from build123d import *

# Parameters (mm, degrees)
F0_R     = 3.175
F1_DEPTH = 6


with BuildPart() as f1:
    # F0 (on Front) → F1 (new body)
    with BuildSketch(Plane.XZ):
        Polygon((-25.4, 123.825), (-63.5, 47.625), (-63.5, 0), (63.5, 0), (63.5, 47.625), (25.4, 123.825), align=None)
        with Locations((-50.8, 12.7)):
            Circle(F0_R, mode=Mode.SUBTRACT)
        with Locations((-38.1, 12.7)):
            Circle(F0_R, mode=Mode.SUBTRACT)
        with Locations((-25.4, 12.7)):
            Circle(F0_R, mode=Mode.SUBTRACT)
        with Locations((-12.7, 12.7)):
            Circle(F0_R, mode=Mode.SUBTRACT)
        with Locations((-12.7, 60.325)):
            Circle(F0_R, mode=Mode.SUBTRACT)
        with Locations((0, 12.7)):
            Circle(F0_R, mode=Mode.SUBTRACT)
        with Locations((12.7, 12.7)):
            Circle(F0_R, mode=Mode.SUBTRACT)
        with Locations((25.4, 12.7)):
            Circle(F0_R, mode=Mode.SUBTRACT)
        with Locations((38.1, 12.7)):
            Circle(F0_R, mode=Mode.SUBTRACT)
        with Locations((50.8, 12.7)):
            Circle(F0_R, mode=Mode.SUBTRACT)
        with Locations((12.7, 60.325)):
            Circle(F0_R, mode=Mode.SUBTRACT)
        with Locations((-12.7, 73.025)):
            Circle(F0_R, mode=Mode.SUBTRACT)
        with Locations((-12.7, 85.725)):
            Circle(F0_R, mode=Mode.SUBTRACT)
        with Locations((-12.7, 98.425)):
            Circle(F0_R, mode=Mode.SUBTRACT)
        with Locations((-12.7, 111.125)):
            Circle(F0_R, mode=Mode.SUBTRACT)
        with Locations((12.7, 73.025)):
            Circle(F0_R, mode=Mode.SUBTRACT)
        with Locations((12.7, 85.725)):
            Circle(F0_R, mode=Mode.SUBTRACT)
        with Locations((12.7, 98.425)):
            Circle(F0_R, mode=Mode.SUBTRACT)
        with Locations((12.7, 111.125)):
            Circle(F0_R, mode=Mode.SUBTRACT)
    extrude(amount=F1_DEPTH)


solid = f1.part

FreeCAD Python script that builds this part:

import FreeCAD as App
import Part
import Sketcher

V = App.Vector
Q = App.Units.Quantity

doc = App.newDocument("Part")
params = doc.addObject("Spreadsheet::Sheet", "Params")
for row, (alias, value) in enumerate([
    ("sketch1_diameter", "0.25 in"),
    ("sketch1_width", "5 in"),
    ("sketch1_width2", "2 in"),
    ("sketch1_height", "1.875 in"),
    ("pad1_length", "6 mm"),
], start=1):
    params.set(f"A{row}", alias)
    params.set(f"B{row}", "=" + value)
    params.setAlias(f"B{row}", alias)

body = doc.addObject("PartDesign::Body", "Body")

# Sketch on XZ plane
sketch1 = body.newObject("Sketcher::SketchObject", "Sketch")
sketch1.AttachmentSupport = (doc.getObject("XZ_Plane"), [""])
sketch1.MapMode = "FlatFace"
sketch1.addGeometry([
    Part.LineSegment(V(-25.4, 123.825, 0), V(-63.5, 47.625, 0)),  # 0
    Part.LineSegment(V(-63.5, 47.625, 0), V(-63.5, 0, 0)),  # 1
    Part.LineSegment(V(-63.5, 0, 0), V(63.5, 0, 0)),  # 2
    Part.LineSegment(V(63.5, 0, 0), V(63.5, 47.625, 0)),  # 3
    Part.LineSegment(V(63.5, 47.625, 0), V(25.4, 123.825, 0)),  # 4
    Part.LineSegment(V(25.4, 123.825, 0), V(-25.4, 123.825, 0)),  # 5
    Part.Circle(V(-50.8, 12.7, 0), V(0, 0, 1), 3.175),  # 6
    Part.Circle(V(-38.1, 12.7, 0), V(0, 0, 1), 3.175),  # 7
    Part.Circle(V(-25.4, 12.7, 0), V(0, 0, 1), 3.175),  # 8
    Part.Circle(V(-12.7, 12.7, 0), V(0, 0, 1), 3.175),  # 9
    Part.Circle(V(-12.7, 60.325, 0), V(0, 0, 1), 3.175),  # 10
    Part.Circle(V(0, 12.7, 0), V(0, 0, 1), 3.175),  # 11
    Part.Circle(V(12.7, 12.7, 0), V(0, 0, 1), 3.175),  # 12
    Part.Circle(V(25.4, 12.7, 0), V(0, 0, 1), 3.175),  # 13
    Part.Circle(V(38.1, 12.7, 0), V(0, 0, 1), 3.175),  # 14
    Part.Circle(V(50.8, 12.7, 0), V(0, 0, 1), 3.175),  # 15
    Part.Circle(V(12.7, 60.325, 0), V(0, 0, 1), 3.175),  # 16
    Part.Circle(V(-12.7, 73.025, 0), V(0, 0, 1), 3.175),  # 17
    Part.Circle(V(-12.7, 85.725, 0), V(0, 0, 1), 3.175),  # 18
    Part.Circle(V(-12.7, 98.425, 0), V(0, 0, 1), 3.175),  # 19
    Part.Circle(V(-12.7, 111.125, 0), V(0, 0, 1), 3.175),  # 20
    Part.Circle(V(12.7, 73.025, 0), V(0, 0, 1), 3.175),  # 21
    Part.Circle(V(12.7, 85.725, 0), V(0, 0, 1), 3.175),  # 22
    Part.Circle(V(12.7, 98.425, 0), V(0, 0, 1), 3.175),  # 23
    Part.Circle(V(12.7, 111.125, 0), V(0, 0, 1), 3.175),  # 24
], False)
sketch1.addConstraint([
    Sketcher.Constraint("Coincident", 0, 2, 1, 1),
    Sketcher.Constraint("Coincident", 1, 2, 2, 1),
    Sketcher.Constraint("Coincident", 2, 2, 3, 1),
    Sketcher.Constraint("Coincident", 3, 2, 4, 1),
    Sketcher.Constraint("Coincident", 4, 2, 5, 1),
    Sketcher.Constraint("Coincident", 5, 2, 0, 1),
    Sketcher.Constraint("Vertical", 1),
    Sketcher.Constraint("Horizontal", 2),
    Sketcher.Constraint("Vertical", 3),
    Sketcher.Constraint("Horizontal", 5),
    Sketcher.Constraint("Equal", 6, 7),
    Sketcher.Constraint("Equal", 7, 8),
    Sketcher.Constraint("Equal", 8, 9),
    Sketcher.Constraint("Equal", 9, 10),
    Sketcher.Constraint("Equal", 10, 11),
    Sketcher.Constraint("Equal", 11, 12),
    Sketcher.Constraint("Equal", 12, 13),
    Sketcher.Constraint("Equal", 13, 14),
    Sketcher.Constraint("Equal", 14, 15),
    Sketcher.Constraint("Equal", 15, 16),
    Sketcher.Constraint("Equal", 16, 17),
    Sketcher.Constraint("Equal", 17, 18),
    Sketcher.Constraint("Equal", 18, 19),
    Sketcher.Constraint("Equal", 19, 20),
    Sketcher.Constraint("Equal", 20, 21),
    Sketcher.Constraint("Equal", 21, 22),
    Sketcher.Constraint("Equal", 22, 23),
    Sketcher.Constraint("Equal", 23, 24),
    Sketcher.Constraint("Symmetric", 1, 2, 2, 2, -1, 1),
    Sketcher.Constraint("Symmetric", 9, 3, 12, 3, -2),
    Sketcher.Constraint("Symmetric", 8, 3, 13, 3, -2),
    Sketcher.Constraint("Symmetric", 7, 3, 14, 3, -2),
    Sketcher.Constraint("Symmetric", 6, 3, 15, 3, -2),
    Sketcher.Constraint("Symmetric", 10, 3, 16, 3, -2),
    Sketcher.Constraint("Symmetric", 17, 3, 21, 3, -2),
    Sketcher.Constraint("Symmetric", 18, 3, 22, 3, -2),
    Sketcher.Constraint("Symmetric", 19, 3, 23, 3, -2),
    Sketcher.Constraint("Symmetric", 20, 3, 24, 3, -2),
    Sketcher.Constraint("PointOnObject", 11, 3, -2),
    Sketcher.Constraint("Horizontal", 6, 3, 7, 3),
    Sketcher.Constraint("Horizontal", 7, 3, 8, 3),
    Sketcher.Constraint("Horizontal", 8, 3, 9, 3),
    Sketcher.Constraint("Horizontal", 9, 3, 11, 3),
    Sketcher.Constraint("Horizontal", 0, 2, 3, 2),
    Sketcher.Constraint("Vertical", 9, 3, 10, 3),
    Sketcher.Constraint("Vertical", 10, 3, 17, 3),
    Sketcher.Constraint("Vertical", 17, 3, 18, 3),
    Sketcher.Constraint("Vertical", 18, 3, 19, 3),
    Sketcher.Constraint("Vertical", 19, 3, 20, 3),
    Sketcher.Constraint("Vertical", 13, 3, 4, 2),
    Sketcher.Constraint("Vertical", 8, 3, 5, 2),
    Sketcher.Constraint("Diameter", 6, Q("0.25 in")),
    Sketcher.Constraint("DistanceX", 2, 1, 2, 2, Q("5 in")),
    Sketcher.Constraint("DistanceX", 5, 2, 5, 1, Q("2 in")),
    Sketcher.Constraint("DistanceX", 6, 3, -1, 1, Q("2 in")),
    Sketcher.Constraint("DistanceX", 7, 3, 9, 3, Q("1 in")),
    Sketcher.Constraint("DistanceX", 9, 3, 12, 3, Q("1 in")),
    Sketcher.Constraint("DistanceY", 10, 3, 18, 3, Q("1 in")),
    Sketcher.Constraint("DistanceY", 17, 3, 19, 3, Q("1 in")),
    Sketcher.Constraint("DistanceY", 18, 3, 20, 3, Q("1 in")),
    Sketcher.Constraint("DistanceY", 0, 2, 17, 3, Q("1 in")),
    Sketcher.Constraint("DistanceY", 23, 3, 4, 2, Q("1 in")),
    Sketcher.Constraint("DistanceY", -1, 1, 6, 3, Q("0.5 in")),
    Sketcher.Constraint("DistanceY", 10, 3, 17, 3, Q("0.5 in")),
    Sketcher.Constraint("DistanceY", 1, 2, 1, 1, Q("1.875 in")),
])
sketch1.setExpression("Constraints[51]", "Params.sketch1_diameter")
sketch1.setExpression("Constraints[52]", "Params.sketch1_width")
sketch1.setExpression("Constraints[53]", "Params.sketch1_width2")
sketch1.setExpression("Constraints[64]", "Params.sketch1_height")
pad1 = body.newObject("PartDesign::Pad", "Pad")
pad1.Profile = sketch1
pad1.setExpression("Length", "Params.pad1_length")

doc.recompute()
